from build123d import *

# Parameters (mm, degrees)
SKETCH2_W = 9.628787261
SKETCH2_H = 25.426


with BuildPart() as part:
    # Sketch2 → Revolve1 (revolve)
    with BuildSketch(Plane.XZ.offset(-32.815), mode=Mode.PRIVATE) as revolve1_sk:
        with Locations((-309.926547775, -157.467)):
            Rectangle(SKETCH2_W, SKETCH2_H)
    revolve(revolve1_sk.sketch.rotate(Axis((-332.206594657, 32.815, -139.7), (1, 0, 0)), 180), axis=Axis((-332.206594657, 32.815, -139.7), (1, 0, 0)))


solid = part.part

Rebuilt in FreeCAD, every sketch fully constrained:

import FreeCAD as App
import Part
import Sketcher

doc = App.newDocument("Part")
body = doc.addObject("PartDesign::Body", "Body")

# Sketch on XZ plane
sketch1 = doc.addObject("Sketcher::SketchObject", "Sketch")
body.addObject(sketch1)
sketch1.AttachmentSupport = (doc.XZ_Plane, [""])
sketch1.MapMode = "FlatFace"
sketch1.AttachmentOffset = App.Placement(App.Vector(0, 0, -32.815), App.Rotation())
sketch1.addGeometry(Part.LineSegment(App.Vector(-315, -145, 0), App.Vector(-315, -170, 0)), False)
sketch1.addGeometry(Part.LineSegment(App.Vector(-315, -170, 0), App.Vector(-305, -170, 0)), False)
sketch1.addGeometry(Part.LineSegment(App.Vector(-305, -170, 0), App.Vector(-305, -145, 0)), False)
sketch1.addGeometry(Part.LineSegment(App.Vector(-305, -145, 0), App.Vector(-315, -145, 0)), False)
sketch1.addGeometry(Part.LineSegment(App.Vector(-315, -140, 0), App.Vector(-305, -140, 0)), True)  # axis
sketch1.addConstraint(Sketcher.Constraint("Coincident", 0, 2, 1, 1))
sketch1.addConstraint(Sketcher.Constraint("Coincident", 1, 2, 2, 1))
sketch1.addConstraint(Sketcher.Constraint("Coincident", 2, 2, 3, 1))
sketch1.addConstraint(Sketcher.Constraint("Coincident", 3, 2, 0, 1))
sketch1.addConstraint(Sketcher.Constraint("Vertical", 0))
sketch1.addConstraint(Sketcher.Constraint("Horizontal", 1))
sketch1.addConstraint(Sketcher.Constraint("Vertical", 2))
sketch1.addConstraint(Sketcher.Constraint("Horizontal", 3))
sketch1.addConstraint(Sketcher.Constraint("Horizontal", 4))
sketch1.addConstraint(Sketcher.Constraint("Vertical", 3, 2, 4, 1))
sketch1.addConstraint(Sketcher.Constraint("Vertical", 2, 2, 4, 2))
sketch1.addConstraint(Sketcher.Constraint("DistanceY", 4, 1, -1, 1, 139.7))
sketch1.addConstraint(Sketcher.Constraint("DistanceY", 0, 2, 0, 1, 25.426))
sketch1.addConstraint(Sketcher.Constraint("DistanceY", 0, 2, -1, 1, 170.18))
sketch1.addConstraint(Sketcher.Constraint("DistanceX", 1, 1, 1, 2, 9.628787))
sketch1.addConstraint(Sketcher.Constraint("DistanceX", 0, 2, -1, 1, 314.740941))
revolution = doc.addObject("PartDesign::Revolution", "Revolution")
body.addObject(revolution)
revolution.Profile = sketch1
revolution.ReferenceAxis = (sketch1, ["Axis0"])
revolution.Angle = 360

doc.recompute()
